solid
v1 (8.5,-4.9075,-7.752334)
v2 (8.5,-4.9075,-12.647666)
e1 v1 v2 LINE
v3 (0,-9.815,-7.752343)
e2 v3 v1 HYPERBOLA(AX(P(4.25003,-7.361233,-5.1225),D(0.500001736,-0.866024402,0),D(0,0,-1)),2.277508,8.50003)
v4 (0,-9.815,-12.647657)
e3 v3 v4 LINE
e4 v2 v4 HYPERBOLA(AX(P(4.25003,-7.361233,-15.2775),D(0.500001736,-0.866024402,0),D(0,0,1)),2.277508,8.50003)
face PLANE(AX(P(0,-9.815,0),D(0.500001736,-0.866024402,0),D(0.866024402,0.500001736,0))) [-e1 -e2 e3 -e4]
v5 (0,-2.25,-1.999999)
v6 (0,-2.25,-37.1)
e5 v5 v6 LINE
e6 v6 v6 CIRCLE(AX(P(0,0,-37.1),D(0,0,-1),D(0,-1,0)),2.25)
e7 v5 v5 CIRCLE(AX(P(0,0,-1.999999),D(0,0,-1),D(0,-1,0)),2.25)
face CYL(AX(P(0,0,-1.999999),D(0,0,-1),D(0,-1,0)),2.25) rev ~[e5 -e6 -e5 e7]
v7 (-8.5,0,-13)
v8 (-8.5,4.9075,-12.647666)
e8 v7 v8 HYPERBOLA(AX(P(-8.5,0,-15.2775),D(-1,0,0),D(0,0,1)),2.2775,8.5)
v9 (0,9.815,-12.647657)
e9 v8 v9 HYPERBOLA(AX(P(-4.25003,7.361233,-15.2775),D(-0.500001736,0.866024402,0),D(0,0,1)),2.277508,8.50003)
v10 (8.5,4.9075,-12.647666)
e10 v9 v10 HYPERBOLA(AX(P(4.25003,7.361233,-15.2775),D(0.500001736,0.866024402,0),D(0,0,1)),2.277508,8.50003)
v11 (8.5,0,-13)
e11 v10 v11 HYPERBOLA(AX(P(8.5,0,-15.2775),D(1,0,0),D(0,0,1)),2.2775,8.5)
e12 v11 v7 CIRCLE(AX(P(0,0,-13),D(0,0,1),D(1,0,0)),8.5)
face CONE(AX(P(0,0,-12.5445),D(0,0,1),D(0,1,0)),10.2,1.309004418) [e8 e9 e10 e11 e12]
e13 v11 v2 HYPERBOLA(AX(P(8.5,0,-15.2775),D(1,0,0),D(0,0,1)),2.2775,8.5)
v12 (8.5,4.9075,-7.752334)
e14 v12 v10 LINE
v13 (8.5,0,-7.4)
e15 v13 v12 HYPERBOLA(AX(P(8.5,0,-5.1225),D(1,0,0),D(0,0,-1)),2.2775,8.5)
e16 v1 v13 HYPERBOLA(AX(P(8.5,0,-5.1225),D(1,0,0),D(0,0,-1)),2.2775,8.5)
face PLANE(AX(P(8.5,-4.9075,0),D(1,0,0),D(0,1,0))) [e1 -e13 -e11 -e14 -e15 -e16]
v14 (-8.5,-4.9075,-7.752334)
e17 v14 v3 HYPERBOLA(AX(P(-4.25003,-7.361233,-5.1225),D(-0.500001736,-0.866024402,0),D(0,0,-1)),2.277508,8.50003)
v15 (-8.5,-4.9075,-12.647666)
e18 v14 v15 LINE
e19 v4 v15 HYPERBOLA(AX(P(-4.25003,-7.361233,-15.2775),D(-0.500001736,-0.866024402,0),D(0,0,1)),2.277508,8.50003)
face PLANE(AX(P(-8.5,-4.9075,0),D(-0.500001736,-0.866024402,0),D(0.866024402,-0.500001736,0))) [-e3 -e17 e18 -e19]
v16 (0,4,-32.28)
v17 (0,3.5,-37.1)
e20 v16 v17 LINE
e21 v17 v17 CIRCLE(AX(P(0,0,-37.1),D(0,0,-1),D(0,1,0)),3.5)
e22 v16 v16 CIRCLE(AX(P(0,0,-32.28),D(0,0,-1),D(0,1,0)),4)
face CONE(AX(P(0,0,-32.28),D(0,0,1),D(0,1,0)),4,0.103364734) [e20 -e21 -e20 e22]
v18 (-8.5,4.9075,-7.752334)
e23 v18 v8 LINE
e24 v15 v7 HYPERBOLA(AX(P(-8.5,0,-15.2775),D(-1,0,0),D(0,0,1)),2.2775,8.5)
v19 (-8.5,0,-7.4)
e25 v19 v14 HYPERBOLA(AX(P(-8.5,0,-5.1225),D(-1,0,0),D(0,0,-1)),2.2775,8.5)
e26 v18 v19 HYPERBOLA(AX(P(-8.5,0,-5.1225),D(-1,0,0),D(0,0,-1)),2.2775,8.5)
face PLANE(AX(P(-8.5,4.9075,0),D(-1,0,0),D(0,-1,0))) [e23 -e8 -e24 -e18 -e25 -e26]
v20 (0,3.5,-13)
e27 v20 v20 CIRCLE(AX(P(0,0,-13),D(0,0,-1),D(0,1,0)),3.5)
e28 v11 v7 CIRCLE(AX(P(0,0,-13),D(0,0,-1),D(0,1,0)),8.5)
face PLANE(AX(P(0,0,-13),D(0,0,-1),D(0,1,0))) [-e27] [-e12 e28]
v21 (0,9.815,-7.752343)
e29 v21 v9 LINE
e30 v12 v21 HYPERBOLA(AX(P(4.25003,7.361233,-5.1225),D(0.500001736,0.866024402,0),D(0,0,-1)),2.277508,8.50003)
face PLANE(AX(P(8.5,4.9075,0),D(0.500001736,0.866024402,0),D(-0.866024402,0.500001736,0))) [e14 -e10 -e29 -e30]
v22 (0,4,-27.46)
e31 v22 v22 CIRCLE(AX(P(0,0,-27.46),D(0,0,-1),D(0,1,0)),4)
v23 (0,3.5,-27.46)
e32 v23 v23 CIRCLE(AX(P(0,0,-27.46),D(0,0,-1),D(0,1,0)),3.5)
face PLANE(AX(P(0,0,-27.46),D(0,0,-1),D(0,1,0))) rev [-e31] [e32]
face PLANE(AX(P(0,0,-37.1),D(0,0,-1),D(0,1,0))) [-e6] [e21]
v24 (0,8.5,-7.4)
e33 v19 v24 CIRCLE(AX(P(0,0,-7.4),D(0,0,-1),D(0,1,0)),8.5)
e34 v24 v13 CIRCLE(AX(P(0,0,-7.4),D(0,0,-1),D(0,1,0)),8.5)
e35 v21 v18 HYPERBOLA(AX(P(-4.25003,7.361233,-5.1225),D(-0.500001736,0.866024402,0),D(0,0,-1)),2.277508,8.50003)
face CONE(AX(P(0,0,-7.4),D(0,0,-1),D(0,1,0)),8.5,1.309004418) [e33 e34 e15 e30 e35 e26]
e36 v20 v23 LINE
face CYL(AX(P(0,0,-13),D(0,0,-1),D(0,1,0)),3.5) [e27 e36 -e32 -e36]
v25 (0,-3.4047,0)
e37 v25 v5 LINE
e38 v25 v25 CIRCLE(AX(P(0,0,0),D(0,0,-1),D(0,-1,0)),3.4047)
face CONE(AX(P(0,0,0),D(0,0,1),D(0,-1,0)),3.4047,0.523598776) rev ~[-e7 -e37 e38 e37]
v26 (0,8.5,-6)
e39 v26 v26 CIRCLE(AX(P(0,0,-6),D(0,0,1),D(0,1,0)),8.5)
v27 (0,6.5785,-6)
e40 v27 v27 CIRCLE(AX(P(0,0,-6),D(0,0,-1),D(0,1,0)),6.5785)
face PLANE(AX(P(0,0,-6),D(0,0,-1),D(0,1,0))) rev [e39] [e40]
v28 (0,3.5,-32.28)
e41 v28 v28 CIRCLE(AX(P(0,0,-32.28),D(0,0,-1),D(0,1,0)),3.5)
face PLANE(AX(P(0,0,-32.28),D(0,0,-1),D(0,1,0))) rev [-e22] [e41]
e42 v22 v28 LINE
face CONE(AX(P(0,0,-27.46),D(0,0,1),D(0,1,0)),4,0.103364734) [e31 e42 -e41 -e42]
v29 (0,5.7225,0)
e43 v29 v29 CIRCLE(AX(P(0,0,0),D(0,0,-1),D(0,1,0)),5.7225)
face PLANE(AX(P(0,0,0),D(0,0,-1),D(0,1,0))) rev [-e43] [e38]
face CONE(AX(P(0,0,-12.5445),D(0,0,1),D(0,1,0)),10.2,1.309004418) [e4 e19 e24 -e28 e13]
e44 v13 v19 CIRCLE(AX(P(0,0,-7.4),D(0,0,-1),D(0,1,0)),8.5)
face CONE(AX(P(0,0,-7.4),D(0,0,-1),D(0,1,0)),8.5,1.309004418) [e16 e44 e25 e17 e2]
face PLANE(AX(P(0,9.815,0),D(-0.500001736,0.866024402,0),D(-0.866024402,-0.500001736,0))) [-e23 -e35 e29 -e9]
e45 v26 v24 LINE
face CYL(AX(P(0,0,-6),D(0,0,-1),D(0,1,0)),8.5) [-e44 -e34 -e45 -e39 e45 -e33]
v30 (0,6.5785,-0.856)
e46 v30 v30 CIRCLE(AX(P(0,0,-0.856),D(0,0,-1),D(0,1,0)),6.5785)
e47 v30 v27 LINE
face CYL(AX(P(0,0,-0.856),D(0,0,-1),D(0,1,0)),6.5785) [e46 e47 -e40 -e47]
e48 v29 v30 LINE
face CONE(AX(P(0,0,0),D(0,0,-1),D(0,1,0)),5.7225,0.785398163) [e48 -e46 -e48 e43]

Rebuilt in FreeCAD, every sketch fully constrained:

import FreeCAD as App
import Part
import Sketcher
from FreeCAD import Vector
Q = App.Units.Quantity

doc = App.newDocument("Part")
body = doc.addObject("PartDesign::Body", "Body")

sketch1 = body.newObject("Sketcher::SketchObject", "Sketch")
sketch1.AttachmentSupport = (doc.getObject("YZ_Plane"), [""])
sketch1.MapMode = "FlatFace"
sketch1.addGeometry([
    Part.LineSegment(Vector(0, 0, 0), Vector(0, -37.1, 0)),
    Part.LineSegment(Vector(0, -37.1, 0), Vector(3.5, -37.1, 0)),
    Part.LineSegment(Vector(3.5, -37.1, 0), Vector(4, -32.3, 0)),
    Part.LineSegment(Vector(4, -32.3, 0), Vector(3.5, -32.3, 0)),
    Part.LineSegment(Vector(3.5, -32.3, 0), Vector(4, -27.5, 0)),
    Part.LineSegment(Vector(4, -27.5, 0), Vector(3.5, -27.5, 0)),
    Part.LineSegment(Vector(3.5, -27.5, 0), Vector(3.5, -13, 0)),
    Part.LineSegment(Vector(3.5, -13, 0), Vector(8.5, -13, 0)),
    Part.LineSegment(Vector(8.5, -13, 0), Vector(10.2, -12.5, 0)),
    Part.LineSegment(Vector(10.2, -12.5, 0), Vector(10.2, -7.9, 0)),
    Part.LineSegment(Vector(10.2, -7.9, 0), Vector(8.5, -7.4, 0)),
    Part.LineSegment(Vector(8.5, -7.4, 0), Vector(8.5, -6, 0)),
    Part.LineSegment(Vector(8.5, -6, 0), Vector(6.6, -6, 0)),
    Part.LineSegment(Vector(6.6, -6, 0), Vector(6.6, -0.9, 0)),
    Part.LineSegment(Vector(6.6, -0.9, 0), Vector(5.7, 0, 0)),
    Part.LineSegment(Vector(5.7, 0, 0), Vector(0, 0, 0)),
], False)
sketch1.addConstraint([
    Sketcher.Constraint("Coincident", 0, 2, 1, 1),
    Sketcher.Constraint("Coincident", 1, 2, 2, 1),
    Sketcher.Constraint("Coincident", 2, 2, 3, 1),
    Sketcher.Constraint("Coincident", 3, 2, 4, 1),
    Sketcher.Constraint("Coincident", 4, 2, 5, 1),
    Sketcher.Constraint("Coincident", 5, 2, 6, 1),
    Sketcher.Constraint("Coincident", 6, 2, 7, 1),
    Sketcher.Constraint("Coincident", 7, 2, 8, 1),
    Sketcher.Constraint("Coincident", 8, 2, 9, 1),
    Sketcher.Constraint("Coincident", 9, 2, 10, 1),
    Sketcher.Constraint("Coincident", 10, 2, 11, 1),
    Sketcher.Constraint("Coincident", 11, 2, 12, 1),
    Sketcher.Constraint("Coincident", 12, 2, 13, 1),
    Sketcher.Constraint("Coincident", 13, 2, 14, 1),
    Sketcher.Constraint("Coincident", 14, 2, 15, 1),
    Sketcher.Constraint("Coincident", 15, 2, 0, 1),
    Sketcher.Constraint("Vertical", 0),
    Sketcher.Constraint("Horizontal", 1),
    Sketcher.Constraint("Horizontal", 3),
    Sketcher.Constraint("Horizontal", 5),
    Sketcher.Constraint("Vertical", 6),
    Sketcher.Constraint("Horizontal", 7),
    Sketcher.Constraint("Vertical", 9),
    Sketcher.Constraint("Vertical", 11),
    Sketcher.Constraint("Horizontal", 12),
    Sketcher.Constraint("Vertical", 13),
    Sketcher.Constraint("Horizontal", 15),
    Sketcher.Constraint("Coincident", 15, 2, -1, 1),
    Sketcher.Constraint("Parallel", 2, 4),
    Sketcher.Constraint("Vertical", 1, 2, 3, 2),
    Sketcher.Constraint("Vertical", 2, 2, 4, 2),
    Sketcher.Constraint("Vertical", 3, 2, 5, 2),
    Sketcher.Constraint("Vertical", 7, 2, 10, 2),
    Sketcher.Constraint("Equal", 8, 10),
    Sketcher.Constraint("DistanceX", 7, 1, 7, 2, 5.0),
    Sketcher.Constraint("Angle", 8, Q("14.9996 deg")),
    Sketcher.Constraint("Angle", 14, Q("135 deg")),
    Sketcher.Constraint("DistanceX", 1, 1, 1, 2, 3.5),
    Sketcher.Constraint("DistanceX", 3, 2, 3, 1, 0.5),
    Sketcher.Constraint("DistanceY", 0, 2, 0, 1, 37.1),
    Sketcher.Constraint("DistanceY", 11, 1, 11, 2, 1.4),
    Sketcher.Constraint("DistanceY", 6, 2, -1, 1, 13.0),
    Sketcher.Constraint("DistanceY", 11, 2, -1, 1, 6.0),
    Sketcher.Constraint("DistanceY", 6, 1, 6, 2, 14.46),
    Sketcher.Constraint("DistanceX", -1, 1, 8, 2, 10.2),
    Sketcher.Constraint("DistanceY", 13, 1, 13, 2, 5.144),
    Sketcher.Constraint("DistanceX", 12, 2, 12, 1, 1.9215),
])
revolution = body.newObject("PartDesign::Revolution", "Revolution")
revolution.Profile = sketch1
revolution.ReferenceAxis = (sketch1, ["V_Axis"])
revolution.Angle = 360

sketch2 = body.newObject("Sketcher::SketchObject", "Sketch001")
sketch2.AttachmentSupport = (doc.getObject("XY_Plane"), [""])
sketch2.MapMode = "FlatFace"
sketch2.addGeometry(Part.Circle(Vector(0, 0, 0), Vector(0, 0, 1), 2.2), False)
sketch2.addConstraint([
    Sketcher.Constraint("Coincident", 0, 3, -1, 1),
    Sketcher.Constraint("Diameter", 0, 4.5),
])
doc.recompute()
hole = body.newObject("PartDesign::Hole", "Hole")
hole.Profile = sketch2
hole.ThreadType = "None"
hole.Diameter = 4.5
hole.DepthType = "Dimension"
hole.Depth = 37.1
hole.DrillPoint = "Flat"
hole.HoleCutType = "Countersink"
hole.HoleCutDiameter = 6.8094
hole.HoleCutCountersinkAngle = 60

sketch3 = body.newObject("Sketcher::SketchObject", "Sketch002")
sketch3.AttachmentSupport = (doc.getObject("XY_Plane"), [""])
sketch3.MapMode = "FlatFace"
sketch3.addGeometry([
    Part.LineSegment(Vector(-17, 17, 0), Vector(-17, -17, 0)),
    Part.LineSegment(Vector(-17, -17, 0), Vector(17, -17, 0)),
    Part.LineSegment(Vector(17, -17, 0), Vector(17, 17, 0)),
    Part.LineSegment(Vector(17, 17, 0), Vector(-17, 17, 0)),
    Part.LineSegment(Vector(0, -10, 0), Vector(-8, -5, 0)),
    Part.LineSegment(Vector(-8, -5, 0), Vector(-8, 5, 0)),
    Part.LineSegment(Vector(-8, 5, 0), Vector(0, 10, 0)),
    Part.LineSegment(Vector(0, 10, 0), Vector(8, 5, 0)),
    Part.LineSegment(Vector(8, 5, 0), Vector(8, -5, 0)),
    Part.LineSegment(Vector(8, -5, 0), Vector(0, -10, 0)),
], False)
sketch3.addConstraint([
    Sketcher.Constraint("Coincident", 0, 2, 1, 1),
    Sketcher.Constraint("Coincident", 1, 2, 2, 1),
    Sketcher.Constraint("Coincident", 2, 2, 3, 1),
    Sketcher.Constraint("Coincident", 3, 2, 0, 1),
    Sketcher.Constraint("Coincident", 4, 2, 5, 1),
    Sketcher.Constraint("Coincident", 5, 2, 6, 1),
    Sketcher.Constraint("Coincident", 6, 2, 7, 1),
    Sketcher.Constraint("Coincident", 7, 2, 8, 1),
    Sketcher.Constraint("Coincident", 8, 2, 9, 1),
    Sketcher.Constraint("Coincident", 9, 2, 4, 1),
    Sketcher.Constraint("Vertical", 0),
    Sketcher.Constraint("Horizontal", 1),
    Sketcher.Constraint("Vertical", 2),
    Sketcher.Constraint("Horizontal", 3),
    Sketcher.Constraint("Vertical", 5),
    Sketcher.Constraint("Vertical", 8),
    Sketcher.Constraint("Symmetric", 0, 2, 2, 2, -1, 1),
    Sketcher.Constraint("Symmetric", 4, 2, 7, 2, -1, 1),
    Sketcher.Constraint("Symmetric", 6, 2, 9, 2, -1, 1),
    Sketcher.Constraint("PointOnObject", 6, 2, -2),
    Sketcher.Constraint("Parallel", 6, 9),
    Sketcher.Constraint("Horizontal", 5, 2, 7, 2),
    Sketcher.Constraint("Equal", 3, 0),
    Sketcher.Constraint("DistanceX", 1, 1, 1, 2, 34.0),
    Sketcher.Constraint("Angle", 4, Q("150 deg")),
    Sketcher.Constraint("DistanceX", 5, 2, 7, 2, 17.0),
    Sketcher.Constraint("DistanceY", 5, 1, 5, 2, 9.815),
])
pocket1 = body.newObject("PartDesign::Pocket", "Pocket")
pocket1.Profile = sketch3
pocket1.Length = 13

doc.recompute()
